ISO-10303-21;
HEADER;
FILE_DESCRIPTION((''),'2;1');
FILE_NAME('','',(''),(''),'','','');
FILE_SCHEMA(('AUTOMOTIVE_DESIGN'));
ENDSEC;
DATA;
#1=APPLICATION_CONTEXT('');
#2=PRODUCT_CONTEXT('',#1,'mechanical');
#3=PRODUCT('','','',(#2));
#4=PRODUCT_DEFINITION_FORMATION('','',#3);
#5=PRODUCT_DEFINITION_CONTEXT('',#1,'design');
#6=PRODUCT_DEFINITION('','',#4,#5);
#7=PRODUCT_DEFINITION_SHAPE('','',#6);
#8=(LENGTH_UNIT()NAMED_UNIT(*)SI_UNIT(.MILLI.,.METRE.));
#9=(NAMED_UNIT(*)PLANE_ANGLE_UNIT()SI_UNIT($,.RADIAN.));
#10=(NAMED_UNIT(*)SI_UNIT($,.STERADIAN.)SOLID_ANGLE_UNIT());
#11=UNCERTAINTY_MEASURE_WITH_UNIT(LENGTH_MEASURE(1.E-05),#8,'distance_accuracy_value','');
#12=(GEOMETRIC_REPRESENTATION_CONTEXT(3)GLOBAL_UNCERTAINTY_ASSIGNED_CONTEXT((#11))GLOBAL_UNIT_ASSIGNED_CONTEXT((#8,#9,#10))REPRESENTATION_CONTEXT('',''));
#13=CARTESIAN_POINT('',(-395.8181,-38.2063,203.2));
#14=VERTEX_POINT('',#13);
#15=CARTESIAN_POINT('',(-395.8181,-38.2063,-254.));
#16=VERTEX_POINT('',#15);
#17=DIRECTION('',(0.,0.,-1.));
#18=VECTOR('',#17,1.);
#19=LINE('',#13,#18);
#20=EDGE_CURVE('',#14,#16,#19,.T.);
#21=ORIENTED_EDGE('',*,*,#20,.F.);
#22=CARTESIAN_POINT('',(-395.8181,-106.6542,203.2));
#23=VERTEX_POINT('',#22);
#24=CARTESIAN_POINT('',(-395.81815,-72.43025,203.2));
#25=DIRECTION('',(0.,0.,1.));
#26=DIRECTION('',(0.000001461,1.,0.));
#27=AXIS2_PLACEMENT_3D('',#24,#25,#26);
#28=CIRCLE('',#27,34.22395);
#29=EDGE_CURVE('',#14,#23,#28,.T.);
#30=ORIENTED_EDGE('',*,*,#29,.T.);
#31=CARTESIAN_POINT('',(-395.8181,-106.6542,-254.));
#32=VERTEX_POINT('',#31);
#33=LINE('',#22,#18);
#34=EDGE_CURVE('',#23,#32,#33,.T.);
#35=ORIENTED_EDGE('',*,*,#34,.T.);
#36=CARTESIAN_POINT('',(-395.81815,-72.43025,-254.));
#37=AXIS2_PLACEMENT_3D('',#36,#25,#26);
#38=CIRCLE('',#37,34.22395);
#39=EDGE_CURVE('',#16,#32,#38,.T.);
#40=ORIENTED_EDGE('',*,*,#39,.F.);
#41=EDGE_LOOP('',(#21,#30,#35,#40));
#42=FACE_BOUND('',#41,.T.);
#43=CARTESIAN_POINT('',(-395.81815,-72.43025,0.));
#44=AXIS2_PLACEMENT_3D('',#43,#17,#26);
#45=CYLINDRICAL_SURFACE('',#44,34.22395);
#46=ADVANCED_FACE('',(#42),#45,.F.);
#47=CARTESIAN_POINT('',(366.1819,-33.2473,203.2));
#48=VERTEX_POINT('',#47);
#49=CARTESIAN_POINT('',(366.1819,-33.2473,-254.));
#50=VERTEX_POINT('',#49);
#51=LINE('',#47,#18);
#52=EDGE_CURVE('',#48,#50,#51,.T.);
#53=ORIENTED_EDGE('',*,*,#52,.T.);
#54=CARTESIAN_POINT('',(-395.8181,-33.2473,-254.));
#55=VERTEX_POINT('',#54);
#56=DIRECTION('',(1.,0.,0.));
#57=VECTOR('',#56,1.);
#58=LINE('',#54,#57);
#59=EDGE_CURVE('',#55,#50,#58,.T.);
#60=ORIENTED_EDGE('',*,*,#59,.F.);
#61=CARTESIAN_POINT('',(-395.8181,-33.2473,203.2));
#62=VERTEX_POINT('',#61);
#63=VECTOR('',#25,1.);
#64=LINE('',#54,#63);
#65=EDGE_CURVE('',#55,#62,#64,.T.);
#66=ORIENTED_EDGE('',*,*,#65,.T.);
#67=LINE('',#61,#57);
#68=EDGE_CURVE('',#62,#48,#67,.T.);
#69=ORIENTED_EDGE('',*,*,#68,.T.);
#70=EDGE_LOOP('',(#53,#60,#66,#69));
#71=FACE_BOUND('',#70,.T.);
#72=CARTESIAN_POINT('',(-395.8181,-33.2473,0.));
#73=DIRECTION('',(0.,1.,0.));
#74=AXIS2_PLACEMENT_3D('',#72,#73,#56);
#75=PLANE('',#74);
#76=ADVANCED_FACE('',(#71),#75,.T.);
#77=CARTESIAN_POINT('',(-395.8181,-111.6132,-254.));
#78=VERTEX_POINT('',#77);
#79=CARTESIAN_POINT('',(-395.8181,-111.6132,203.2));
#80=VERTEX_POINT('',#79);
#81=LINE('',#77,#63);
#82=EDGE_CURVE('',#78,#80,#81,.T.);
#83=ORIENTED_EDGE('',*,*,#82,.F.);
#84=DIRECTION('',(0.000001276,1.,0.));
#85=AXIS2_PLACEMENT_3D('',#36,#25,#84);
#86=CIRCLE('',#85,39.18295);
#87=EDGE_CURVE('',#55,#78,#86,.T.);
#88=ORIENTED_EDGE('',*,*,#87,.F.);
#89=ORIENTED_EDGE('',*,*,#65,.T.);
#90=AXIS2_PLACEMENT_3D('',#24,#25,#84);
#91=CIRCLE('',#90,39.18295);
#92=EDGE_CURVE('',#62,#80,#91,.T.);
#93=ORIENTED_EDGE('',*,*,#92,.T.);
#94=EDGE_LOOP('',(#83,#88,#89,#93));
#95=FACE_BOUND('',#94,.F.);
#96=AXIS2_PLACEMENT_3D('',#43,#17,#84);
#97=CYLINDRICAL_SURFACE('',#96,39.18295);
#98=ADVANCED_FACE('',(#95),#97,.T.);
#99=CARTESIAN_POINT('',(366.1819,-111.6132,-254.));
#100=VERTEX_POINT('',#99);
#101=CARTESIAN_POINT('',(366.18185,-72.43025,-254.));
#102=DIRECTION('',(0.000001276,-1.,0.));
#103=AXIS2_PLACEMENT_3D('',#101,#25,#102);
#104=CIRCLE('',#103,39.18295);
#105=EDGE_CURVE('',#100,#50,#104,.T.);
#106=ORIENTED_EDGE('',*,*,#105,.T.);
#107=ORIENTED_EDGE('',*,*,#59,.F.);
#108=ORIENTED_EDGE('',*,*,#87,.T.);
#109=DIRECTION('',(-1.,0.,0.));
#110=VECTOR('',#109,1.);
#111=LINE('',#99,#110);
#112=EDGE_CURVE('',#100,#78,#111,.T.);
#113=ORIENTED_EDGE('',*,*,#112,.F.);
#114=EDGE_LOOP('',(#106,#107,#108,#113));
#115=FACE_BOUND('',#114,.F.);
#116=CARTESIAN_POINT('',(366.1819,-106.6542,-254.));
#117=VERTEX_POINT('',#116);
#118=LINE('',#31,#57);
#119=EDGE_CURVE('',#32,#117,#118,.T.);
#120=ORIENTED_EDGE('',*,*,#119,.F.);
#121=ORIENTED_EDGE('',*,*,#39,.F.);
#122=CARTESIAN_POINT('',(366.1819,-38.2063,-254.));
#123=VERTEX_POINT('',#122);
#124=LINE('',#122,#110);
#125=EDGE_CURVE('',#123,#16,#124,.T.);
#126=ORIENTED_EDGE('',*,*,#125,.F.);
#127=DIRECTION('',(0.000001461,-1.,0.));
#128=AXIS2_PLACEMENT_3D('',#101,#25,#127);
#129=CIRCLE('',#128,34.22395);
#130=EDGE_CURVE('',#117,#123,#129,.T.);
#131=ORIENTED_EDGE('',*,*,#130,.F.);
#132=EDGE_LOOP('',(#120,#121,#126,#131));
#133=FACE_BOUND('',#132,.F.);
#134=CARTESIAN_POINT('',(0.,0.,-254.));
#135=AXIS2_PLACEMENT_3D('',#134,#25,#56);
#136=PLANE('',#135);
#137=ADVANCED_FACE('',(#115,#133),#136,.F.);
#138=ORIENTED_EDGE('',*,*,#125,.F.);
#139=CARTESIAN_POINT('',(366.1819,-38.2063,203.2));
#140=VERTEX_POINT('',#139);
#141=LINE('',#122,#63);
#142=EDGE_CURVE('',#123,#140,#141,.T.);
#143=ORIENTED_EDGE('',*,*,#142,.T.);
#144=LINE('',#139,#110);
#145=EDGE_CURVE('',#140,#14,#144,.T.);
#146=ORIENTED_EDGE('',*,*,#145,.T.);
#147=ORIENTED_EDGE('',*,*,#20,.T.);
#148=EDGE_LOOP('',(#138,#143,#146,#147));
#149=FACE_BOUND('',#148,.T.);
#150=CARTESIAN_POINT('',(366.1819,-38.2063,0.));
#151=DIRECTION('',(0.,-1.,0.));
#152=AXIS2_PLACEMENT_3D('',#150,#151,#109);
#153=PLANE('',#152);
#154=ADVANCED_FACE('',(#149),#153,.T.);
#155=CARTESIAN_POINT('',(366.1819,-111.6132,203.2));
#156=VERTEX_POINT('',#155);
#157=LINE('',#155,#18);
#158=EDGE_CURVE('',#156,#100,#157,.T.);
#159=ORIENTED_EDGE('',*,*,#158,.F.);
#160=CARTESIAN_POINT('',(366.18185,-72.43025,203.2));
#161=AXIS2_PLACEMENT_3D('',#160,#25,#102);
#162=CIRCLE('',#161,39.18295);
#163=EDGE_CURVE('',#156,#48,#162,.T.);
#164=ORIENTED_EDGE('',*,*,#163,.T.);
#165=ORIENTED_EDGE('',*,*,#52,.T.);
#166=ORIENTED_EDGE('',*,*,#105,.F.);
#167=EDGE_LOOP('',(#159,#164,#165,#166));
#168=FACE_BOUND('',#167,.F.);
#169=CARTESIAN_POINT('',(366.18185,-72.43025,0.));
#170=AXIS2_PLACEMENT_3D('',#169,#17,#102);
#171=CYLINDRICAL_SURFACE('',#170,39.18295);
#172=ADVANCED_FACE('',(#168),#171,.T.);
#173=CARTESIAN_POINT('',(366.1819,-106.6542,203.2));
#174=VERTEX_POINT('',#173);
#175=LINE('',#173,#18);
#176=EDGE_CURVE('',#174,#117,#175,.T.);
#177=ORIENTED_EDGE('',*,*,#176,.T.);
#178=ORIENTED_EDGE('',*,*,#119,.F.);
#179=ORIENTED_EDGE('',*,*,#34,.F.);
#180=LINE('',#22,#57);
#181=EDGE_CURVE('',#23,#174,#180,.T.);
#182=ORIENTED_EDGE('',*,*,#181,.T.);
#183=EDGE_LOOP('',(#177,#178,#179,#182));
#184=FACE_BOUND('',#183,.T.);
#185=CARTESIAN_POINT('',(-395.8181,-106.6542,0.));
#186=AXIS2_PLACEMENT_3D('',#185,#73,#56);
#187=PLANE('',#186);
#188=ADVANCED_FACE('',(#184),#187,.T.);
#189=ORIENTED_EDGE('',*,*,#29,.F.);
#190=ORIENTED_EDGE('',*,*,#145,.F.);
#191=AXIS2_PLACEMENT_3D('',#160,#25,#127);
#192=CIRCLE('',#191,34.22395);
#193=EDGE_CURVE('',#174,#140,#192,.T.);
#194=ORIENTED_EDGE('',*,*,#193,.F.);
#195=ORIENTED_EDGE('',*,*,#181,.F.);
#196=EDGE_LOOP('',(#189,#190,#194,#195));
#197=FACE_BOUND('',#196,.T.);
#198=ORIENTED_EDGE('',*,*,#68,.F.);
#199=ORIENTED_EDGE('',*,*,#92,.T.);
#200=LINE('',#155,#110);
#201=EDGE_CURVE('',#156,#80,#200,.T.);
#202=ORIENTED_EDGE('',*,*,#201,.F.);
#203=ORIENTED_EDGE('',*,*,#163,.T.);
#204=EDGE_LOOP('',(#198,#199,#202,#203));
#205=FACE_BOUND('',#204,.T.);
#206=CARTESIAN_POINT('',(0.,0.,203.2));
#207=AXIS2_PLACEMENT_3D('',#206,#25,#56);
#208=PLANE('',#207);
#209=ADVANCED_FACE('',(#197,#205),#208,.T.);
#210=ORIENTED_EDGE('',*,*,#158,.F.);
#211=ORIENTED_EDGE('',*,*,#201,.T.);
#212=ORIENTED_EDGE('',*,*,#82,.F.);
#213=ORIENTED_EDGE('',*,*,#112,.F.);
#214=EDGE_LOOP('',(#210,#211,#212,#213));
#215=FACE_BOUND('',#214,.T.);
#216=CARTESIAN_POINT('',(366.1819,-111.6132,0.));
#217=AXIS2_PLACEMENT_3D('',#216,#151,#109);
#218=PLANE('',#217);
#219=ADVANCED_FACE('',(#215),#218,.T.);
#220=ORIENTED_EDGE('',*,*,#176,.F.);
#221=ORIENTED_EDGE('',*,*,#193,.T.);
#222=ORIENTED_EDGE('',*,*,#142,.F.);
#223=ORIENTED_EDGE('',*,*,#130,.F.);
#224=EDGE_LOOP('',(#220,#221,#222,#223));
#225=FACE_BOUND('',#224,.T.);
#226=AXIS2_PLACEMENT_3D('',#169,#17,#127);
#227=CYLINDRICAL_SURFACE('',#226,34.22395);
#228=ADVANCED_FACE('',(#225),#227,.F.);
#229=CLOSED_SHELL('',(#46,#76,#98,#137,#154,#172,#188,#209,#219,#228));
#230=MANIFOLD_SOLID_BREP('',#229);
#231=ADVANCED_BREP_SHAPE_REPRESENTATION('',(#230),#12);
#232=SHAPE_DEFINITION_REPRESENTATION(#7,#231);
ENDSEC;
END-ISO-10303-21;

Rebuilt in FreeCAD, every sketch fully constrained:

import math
import FreeCAD as App
import Part
import Sketcher
Q = App.Units.Quantity

doc = App.newDocument("Part")
body = doc.addObject("PartDesign::Body", "Body")

# Sketch on XY plane
sketch1 = body.newObject("Sketcher::SketchObject", "Sketch")
sketch1.AttachmentSupport = (doc.getObject("XY_Plane"), [""])
sketch1.MapMode = "FlatFace"
sketch1.addGeometry(Part.LineSegment(App.Vector(366, -33, 0), App.Vector(-396, -33, 0)), False)
sketch1.addGeometry(Part.ArcOfCircle(Part.Circle(App.Vector(-396, -72, 0), App.Vector(0, 0, 1), 39), math.radians(90), math.radians(270)), False)
sketch1.addGeometry(Part.LineSegment(App.Vector(-396, -112, 0), App.Vector(366, -112, 0)), False)
sketch1.addGeometry(Part.ArcOfCircle(Part.Circle(App.Vector(366, -72, 0), App.Vector(0, 0, 1), 39), math.radians(-90), math.radians(90)), False)
sketch1.addGeometry(Part.LineSegment(App.Vector(-396, -38, 0), App.Vector(366, -38, 0)), False)
sketch1.addGeometry(Part.ArcOfCircle(Part.Circle(App.Vector(366, -72, 0), App.Vector(0, 0, 1), 34), math.radians(-90), math.radians(90)), False)
sketch1.addGeometry(Part.LineSegment(App.Vector(366, -107, 0), App.Vector(-396, -107, 0)), False)
sketch1.addGeometry(Part.ArcOfCircle(Part.Circle(App.Vector(-396, -72, 0), App.Vector(0, 0, 1), 34), math.radians(90), math.radians(270)), False)
sketch1.addConstraint(Sketcher.Constraint("Tangent", 0, 2, 1, 1))
sketch1.addConstraint(Sketcher.Constraint("Tangent", 1, 2, 2, 1))
sketch1.addConstraint(Sketcher.Constraint("Tangent", 2, 2, 3, 1))
sketch1.addConstraint(Sketcher.Constraint("Tangent", 3, 2, 0, 1))
sketch1.addConstraint(Sketcher.Constraint("Tangent", 4, 2, 5, 2))
sketch1.addConstraint(Sketcher.Constraint("Tangent", 5, 1, 6, 1))
sketch1.addConstraint(Sketcher.Constraint("Tangent", 6, 2, 7, 2))
sketch1.addConstraint(Sketcher.Constraint("Tangent", 7, 1, 4, 1))
sketch1.addConstraint(Sketcher.Constraint("Horizontal", 0))
sketch1.addConstraint(Sketcher.Constraint("Horizontal", 2))
sketch1.addConstraint(Sketcher.Constraint("Horizontal", 4))
sketch1.addConstraint(Sketcher.Constraint("Horizontal", 6))
sketch1.addConstraint(Sketcher.Constraint("Coincident", 5, 3, 3, 3))
sketch1.addConstraint(Sketcher.Constraint("Vertical", 7, 3, 0, 2))
sketch1.addConstraint(Sketcher.Constraint("DistanceX", 0, 2, 0, 1, Q("30 in")))
sketch1.addConstraint(Sketcher.Constraint("Radius", 5, Q("1.3474 in")))
sketch1.addConstraint(Sketcher.Constraint("Radius", 1, 39.183))
sketch1.addConstraint(Sketcher.Constraint("DistanceX", 1, 3, -1, 1, Q("15.5834 in")))
sketch1.addConstraint(Sketcher.Constraint("DistanceY", 1, 3, -1, 1, 72.4303))
pad1 = body.newObject("PartDesign::Pad", "Pad")
pad1.Profile = sketch1
pad1.Type = "TwoLengths"
pad1.Length = Q("8 in")
pad1.Length2 = Q("10 in")

doc.recompute()
